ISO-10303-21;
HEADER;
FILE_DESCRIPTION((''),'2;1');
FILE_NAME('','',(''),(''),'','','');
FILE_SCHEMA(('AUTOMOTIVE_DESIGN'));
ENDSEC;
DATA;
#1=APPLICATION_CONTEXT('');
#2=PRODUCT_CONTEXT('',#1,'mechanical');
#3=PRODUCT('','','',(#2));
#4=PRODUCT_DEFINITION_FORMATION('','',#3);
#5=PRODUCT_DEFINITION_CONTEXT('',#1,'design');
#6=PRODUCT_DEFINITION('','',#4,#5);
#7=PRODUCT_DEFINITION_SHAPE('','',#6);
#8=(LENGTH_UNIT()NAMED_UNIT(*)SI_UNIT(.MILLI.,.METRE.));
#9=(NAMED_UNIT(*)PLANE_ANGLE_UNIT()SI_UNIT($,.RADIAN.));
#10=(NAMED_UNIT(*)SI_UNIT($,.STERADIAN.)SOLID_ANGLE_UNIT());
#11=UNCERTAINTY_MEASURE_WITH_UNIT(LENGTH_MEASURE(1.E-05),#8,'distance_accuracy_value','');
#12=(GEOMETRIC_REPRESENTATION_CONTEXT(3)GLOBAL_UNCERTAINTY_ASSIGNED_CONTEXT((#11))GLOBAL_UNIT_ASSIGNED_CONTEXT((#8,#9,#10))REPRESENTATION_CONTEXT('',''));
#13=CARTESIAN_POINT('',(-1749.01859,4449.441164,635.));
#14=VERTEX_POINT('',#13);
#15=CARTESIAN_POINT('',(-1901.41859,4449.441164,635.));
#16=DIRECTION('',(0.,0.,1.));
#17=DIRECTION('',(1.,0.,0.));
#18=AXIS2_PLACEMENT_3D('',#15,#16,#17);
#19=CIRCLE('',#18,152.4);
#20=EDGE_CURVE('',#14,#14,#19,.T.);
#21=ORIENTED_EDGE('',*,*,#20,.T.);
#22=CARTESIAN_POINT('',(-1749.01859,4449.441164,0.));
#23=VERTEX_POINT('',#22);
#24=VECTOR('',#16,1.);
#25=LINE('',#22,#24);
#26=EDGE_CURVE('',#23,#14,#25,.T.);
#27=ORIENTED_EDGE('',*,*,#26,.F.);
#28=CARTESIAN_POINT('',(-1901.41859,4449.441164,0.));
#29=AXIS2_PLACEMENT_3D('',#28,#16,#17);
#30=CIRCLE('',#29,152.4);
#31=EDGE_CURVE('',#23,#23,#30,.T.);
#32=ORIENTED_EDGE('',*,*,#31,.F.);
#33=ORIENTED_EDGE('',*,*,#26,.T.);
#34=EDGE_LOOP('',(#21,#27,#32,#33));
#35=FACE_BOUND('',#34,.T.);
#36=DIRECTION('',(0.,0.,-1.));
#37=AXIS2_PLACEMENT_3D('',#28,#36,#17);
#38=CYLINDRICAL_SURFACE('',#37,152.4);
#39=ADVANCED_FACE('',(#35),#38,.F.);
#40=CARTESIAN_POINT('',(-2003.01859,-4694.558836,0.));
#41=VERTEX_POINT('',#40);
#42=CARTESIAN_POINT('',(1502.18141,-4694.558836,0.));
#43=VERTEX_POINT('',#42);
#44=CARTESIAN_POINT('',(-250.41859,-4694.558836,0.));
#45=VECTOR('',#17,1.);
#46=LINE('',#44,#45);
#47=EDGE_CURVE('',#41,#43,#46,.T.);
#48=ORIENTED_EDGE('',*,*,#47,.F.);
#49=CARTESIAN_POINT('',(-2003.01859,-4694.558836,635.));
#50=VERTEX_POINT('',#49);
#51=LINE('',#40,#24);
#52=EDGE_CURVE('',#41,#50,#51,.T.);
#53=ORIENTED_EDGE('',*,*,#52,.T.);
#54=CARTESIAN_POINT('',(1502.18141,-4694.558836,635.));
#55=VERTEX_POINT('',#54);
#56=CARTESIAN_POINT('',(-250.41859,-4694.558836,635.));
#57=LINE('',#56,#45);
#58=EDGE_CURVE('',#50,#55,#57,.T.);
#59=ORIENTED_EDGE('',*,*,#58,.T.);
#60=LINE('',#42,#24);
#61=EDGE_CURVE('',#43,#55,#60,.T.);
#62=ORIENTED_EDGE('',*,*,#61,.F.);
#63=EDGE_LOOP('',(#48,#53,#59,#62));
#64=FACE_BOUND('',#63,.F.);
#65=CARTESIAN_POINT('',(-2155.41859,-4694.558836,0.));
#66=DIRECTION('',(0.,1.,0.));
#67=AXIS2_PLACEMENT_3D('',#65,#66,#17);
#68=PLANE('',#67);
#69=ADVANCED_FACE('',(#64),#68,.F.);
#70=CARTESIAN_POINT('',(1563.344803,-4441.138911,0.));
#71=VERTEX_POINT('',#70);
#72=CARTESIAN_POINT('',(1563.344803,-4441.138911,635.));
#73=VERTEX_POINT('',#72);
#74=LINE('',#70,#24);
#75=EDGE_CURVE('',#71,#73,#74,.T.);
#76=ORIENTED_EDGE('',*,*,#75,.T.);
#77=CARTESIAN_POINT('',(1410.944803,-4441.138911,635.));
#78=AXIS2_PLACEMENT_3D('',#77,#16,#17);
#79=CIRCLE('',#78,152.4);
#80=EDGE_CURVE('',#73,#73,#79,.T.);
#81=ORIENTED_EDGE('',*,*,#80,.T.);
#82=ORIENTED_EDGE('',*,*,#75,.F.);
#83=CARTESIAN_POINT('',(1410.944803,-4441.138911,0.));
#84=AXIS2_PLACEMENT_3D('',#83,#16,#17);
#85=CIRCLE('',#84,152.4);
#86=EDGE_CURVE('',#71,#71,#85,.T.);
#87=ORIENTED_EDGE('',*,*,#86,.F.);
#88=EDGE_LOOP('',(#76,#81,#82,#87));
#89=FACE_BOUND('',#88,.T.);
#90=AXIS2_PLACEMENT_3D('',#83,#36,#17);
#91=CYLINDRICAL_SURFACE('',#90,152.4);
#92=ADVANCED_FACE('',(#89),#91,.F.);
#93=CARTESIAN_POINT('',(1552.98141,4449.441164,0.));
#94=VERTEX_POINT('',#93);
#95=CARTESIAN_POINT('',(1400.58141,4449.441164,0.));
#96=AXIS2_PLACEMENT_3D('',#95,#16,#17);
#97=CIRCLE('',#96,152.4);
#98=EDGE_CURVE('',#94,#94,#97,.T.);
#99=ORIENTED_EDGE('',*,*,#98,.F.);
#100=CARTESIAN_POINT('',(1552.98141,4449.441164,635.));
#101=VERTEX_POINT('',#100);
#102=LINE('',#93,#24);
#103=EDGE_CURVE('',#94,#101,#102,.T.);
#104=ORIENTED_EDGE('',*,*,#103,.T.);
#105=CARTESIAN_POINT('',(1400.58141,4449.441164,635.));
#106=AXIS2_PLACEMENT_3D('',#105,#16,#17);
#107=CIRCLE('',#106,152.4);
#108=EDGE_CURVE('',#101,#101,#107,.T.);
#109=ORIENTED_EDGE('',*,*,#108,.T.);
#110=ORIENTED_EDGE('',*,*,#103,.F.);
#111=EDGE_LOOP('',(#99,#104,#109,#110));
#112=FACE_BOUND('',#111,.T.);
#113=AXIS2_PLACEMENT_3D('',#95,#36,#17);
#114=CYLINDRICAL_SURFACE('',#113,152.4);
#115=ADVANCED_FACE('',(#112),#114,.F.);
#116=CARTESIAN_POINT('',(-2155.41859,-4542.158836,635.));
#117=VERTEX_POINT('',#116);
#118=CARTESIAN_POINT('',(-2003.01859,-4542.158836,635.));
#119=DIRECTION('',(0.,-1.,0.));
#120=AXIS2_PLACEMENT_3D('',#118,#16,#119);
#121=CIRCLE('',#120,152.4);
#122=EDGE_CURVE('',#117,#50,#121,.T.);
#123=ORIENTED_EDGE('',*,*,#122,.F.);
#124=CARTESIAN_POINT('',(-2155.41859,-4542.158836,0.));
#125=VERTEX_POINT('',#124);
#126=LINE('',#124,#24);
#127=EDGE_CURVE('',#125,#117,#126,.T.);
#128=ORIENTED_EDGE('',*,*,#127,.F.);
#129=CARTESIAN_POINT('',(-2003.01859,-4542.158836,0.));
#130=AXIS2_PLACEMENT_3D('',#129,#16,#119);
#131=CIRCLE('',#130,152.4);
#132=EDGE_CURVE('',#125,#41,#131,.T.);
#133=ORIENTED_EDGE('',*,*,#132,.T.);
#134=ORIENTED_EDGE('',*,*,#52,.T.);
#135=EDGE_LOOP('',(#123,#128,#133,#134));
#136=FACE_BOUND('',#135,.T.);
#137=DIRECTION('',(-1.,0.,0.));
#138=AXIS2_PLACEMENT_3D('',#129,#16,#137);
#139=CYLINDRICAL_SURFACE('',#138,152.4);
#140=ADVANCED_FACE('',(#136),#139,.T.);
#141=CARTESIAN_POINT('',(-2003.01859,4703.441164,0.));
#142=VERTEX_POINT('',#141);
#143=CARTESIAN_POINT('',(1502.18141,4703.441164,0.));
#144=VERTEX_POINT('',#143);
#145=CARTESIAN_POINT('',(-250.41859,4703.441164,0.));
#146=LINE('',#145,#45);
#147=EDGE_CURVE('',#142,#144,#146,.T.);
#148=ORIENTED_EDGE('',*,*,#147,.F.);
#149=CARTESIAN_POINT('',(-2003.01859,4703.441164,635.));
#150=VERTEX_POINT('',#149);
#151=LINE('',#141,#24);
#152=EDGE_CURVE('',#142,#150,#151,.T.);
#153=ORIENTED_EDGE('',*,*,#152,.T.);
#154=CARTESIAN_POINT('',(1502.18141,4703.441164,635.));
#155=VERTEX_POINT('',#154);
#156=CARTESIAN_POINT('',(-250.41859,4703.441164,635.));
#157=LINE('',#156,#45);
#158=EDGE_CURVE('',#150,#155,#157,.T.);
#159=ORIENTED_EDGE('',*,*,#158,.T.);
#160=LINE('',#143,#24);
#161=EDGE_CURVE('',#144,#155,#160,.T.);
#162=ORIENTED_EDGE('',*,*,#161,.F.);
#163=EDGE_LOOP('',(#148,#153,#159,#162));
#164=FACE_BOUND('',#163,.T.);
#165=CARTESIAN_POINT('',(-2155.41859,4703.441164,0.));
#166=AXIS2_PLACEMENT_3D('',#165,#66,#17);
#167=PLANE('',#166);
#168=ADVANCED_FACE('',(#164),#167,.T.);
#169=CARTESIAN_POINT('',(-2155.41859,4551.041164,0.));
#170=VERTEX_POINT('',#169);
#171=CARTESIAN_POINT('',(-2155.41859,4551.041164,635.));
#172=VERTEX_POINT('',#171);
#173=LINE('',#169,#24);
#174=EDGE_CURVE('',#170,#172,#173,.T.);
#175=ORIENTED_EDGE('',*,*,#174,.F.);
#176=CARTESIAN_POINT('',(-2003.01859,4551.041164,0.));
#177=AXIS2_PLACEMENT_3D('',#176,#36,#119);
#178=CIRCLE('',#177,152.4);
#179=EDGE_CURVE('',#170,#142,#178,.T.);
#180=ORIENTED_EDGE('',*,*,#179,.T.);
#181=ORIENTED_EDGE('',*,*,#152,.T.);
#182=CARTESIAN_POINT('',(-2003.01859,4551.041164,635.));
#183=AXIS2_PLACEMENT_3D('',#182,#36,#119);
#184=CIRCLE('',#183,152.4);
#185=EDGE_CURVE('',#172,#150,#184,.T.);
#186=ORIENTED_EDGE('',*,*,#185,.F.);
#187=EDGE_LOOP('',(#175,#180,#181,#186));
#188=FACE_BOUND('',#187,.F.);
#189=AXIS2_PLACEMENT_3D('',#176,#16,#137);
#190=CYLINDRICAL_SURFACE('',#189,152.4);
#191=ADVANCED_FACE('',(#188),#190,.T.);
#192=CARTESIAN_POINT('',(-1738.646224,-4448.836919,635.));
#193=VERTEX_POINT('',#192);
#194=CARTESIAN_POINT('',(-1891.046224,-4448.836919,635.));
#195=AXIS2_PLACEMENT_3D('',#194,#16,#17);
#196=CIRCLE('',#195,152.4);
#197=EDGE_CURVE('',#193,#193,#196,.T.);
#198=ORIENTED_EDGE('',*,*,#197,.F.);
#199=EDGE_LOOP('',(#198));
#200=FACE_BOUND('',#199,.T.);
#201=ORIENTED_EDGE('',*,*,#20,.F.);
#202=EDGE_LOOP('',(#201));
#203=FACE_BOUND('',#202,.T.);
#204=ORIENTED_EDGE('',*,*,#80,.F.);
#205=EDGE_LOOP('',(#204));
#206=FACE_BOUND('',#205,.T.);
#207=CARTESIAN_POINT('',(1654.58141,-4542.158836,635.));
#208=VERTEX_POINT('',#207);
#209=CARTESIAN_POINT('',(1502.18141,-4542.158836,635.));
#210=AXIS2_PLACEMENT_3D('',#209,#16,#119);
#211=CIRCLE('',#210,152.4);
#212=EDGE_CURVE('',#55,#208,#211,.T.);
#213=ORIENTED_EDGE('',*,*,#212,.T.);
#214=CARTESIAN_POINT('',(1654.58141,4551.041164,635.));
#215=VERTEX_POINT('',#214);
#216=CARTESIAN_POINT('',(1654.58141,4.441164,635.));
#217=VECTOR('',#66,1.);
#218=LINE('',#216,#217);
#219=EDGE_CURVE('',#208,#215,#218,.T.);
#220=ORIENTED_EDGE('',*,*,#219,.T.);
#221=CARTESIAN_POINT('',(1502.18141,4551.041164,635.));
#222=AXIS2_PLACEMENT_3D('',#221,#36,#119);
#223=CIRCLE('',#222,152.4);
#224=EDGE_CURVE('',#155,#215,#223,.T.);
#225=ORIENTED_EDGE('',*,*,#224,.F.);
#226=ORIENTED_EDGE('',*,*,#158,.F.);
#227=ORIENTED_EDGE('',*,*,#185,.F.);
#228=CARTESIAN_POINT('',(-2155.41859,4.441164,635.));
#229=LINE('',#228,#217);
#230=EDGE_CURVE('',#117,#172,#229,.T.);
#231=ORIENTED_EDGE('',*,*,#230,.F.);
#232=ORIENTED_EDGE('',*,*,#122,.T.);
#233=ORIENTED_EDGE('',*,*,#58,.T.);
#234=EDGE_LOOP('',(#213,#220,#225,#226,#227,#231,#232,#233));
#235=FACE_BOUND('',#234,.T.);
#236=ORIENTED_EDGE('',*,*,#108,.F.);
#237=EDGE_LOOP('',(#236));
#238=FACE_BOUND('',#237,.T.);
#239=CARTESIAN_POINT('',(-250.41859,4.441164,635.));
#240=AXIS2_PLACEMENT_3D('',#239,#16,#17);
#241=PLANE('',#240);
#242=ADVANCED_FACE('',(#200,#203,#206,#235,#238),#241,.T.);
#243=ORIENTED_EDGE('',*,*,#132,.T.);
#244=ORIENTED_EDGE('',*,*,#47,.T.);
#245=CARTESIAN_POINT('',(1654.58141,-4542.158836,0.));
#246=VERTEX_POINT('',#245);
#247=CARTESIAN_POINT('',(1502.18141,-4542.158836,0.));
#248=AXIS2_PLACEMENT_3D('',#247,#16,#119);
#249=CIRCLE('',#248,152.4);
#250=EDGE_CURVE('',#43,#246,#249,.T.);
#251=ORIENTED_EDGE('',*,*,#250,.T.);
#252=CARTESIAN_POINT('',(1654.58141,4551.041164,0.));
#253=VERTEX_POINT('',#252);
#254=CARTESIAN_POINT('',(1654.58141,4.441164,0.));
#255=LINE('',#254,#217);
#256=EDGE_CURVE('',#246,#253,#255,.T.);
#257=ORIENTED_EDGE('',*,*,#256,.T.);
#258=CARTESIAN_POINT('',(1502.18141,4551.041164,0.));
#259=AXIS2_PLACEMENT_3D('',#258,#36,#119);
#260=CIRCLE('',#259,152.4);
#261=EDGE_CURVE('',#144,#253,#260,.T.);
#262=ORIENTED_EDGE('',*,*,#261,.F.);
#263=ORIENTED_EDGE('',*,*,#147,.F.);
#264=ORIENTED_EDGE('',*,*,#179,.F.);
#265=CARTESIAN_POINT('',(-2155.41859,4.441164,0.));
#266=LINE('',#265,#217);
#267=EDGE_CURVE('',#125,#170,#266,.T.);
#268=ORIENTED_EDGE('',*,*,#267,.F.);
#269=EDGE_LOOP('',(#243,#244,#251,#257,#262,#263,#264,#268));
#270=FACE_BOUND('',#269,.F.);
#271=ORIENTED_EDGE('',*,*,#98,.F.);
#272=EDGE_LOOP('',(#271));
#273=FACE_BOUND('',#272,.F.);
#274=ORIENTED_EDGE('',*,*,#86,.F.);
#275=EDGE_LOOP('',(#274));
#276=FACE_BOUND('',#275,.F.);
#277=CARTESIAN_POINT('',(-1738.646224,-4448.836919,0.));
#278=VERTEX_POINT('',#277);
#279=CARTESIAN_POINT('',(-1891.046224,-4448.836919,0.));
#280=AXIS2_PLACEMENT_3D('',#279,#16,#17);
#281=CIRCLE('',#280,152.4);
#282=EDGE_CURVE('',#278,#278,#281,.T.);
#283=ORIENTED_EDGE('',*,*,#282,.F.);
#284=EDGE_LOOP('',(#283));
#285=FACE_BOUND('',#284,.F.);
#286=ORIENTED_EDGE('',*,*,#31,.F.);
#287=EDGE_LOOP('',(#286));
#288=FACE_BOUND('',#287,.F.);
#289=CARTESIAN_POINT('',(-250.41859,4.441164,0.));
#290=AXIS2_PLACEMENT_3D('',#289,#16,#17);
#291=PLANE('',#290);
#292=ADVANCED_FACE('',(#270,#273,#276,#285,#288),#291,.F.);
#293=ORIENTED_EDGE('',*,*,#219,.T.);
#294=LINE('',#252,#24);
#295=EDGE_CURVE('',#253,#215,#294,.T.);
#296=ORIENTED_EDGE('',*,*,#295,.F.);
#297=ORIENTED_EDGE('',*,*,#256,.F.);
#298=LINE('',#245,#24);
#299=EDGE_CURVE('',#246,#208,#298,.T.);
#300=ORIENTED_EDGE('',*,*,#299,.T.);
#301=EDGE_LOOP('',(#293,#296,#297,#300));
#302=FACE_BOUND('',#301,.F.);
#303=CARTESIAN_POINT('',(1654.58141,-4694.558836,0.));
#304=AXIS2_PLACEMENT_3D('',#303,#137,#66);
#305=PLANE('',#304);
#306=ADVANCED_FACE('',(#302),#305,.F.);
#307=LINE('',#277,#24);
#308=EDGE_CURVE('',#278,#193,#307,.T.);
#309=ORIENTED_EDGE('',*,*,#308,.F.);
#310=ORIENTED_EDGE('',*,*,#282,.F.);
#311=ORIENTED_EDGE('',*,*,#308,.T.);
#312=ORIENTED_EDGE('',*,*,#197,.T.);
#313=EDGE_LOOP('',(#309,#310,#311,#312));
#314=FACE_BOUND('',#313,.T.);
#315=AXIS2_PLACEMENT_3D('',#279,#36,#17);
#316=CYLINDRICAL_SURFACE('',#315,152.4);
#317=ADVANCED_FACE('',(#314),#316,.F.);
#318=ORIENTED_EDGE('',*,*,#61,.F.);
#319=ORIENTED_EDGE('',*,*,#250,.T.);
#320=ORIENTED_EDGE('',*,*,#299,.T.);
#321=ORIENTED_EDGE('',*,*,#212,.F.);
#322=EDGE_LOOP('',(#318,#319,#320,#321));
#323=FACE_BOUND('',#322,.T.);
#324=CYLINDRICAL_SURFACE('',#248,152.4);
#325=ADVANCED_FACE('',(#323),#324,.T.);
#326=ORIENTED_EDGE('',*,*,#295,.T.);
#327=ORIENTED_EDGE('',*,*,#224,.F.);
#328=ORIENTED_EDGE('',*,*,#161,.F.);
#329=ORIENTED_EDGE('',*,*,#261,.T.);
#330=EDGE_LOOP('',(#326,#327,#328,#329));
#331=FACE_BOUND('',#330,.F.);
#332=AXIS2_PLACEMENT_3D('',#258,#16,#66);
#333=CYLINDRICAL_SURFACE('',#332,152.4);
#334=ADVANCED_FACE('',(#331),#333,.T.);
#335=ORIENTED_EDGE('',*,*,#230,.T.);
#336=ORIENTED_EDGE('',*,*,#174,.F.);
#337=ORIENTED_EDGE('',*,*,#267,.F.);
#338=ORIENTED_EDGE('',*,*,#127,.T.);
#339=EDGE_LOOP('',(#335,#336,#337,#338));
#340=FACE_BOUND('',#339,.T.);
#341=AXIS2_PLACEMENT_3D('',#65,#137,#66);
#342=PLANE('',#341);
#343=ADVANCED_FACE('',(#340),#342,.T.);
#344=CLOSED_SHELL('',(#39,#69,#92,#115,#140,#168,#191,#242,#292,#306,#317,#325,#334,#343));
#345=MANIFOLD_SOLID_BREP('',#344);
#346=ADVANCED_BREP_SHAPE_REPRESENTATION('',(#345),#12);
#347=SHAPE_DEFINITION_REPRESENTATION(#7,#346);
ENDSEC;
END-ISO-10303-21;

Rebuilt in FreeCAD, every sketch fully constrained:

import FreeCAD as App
import Part
import Sketcher
from FreeCAD import Vector
Q = App.Units.Quantity


def edges_at(feature, points):
    """Names of the edges that pass closest to the given points."""
    edges = feature.Shape.Edges
    near = lambda p: min(range(len(edges)), key=lambda i: edges[i].distToShape(Part.Vertex(*p))[0])
    return sorted({f"Edge{near(p) + 1}" for p in points})


def add_polygon(sketch, points):
    """Adds a closed chain of lines whose ends are joined by coincident constraints."""
    first, n = sketch.GeometryCount, len(points)
    for a, b in zip(points, points[1:] + points[:1]):
        sketch.addGeometry(Part.LineSegment(App.Vector(*a, 0), App.Vector(*b, 0)), False)
    for i in range(n):
        sketch.addConstraint(Sketcher.Constraint("Coincident", first + i, 2, first + (i + 1) % n, 1))

doc = App.newDocument("Part")
params = doc.addObject("Spreadsheet::Sheet", "Params")
for row, (alias, value) in enumerate([
    ("sketch1_diameter", "12 in"),
    ("sketch1_width", "150 in"),
    ("sketch1_height", "370 in"),
    ("pad1_length", "25 in"),
    ("fillet_radius", "6 in"),
], start=1):
    params.set(f"A{row}", alias)
    params.set(f"B{row}", "=" + value)
    params.setAlias(f"B{row}", alias)

body = doc.addObject("PartDesign::Body", "Body")

# Sketch on XY plane
sketch1 = body.newObject("Sketcher::SketchObject", "Sketch")
sketch1.AttachmentSupport = (doc.getObject("XY_Plane"), [""])
sketch1.MapMode = "FlatFace"
add_polygon(sketch1, [(-2155, 4703), (-2155, -4695), (1655, -4695), (1655, 4703)])  # lines 0-3
sketch1.addGeometry(Part.Circle(Vector(-1891, -4449, 0), Vector(0, 0, 1), 152), False)  # 4
sketch1.addGeometry(Part.Circle(Vector(1411, -4441, 0), Vector(0, 0, 1), 152), False)  # 5
sketch1.addGeometry(Part.Circle(Vector(-1901, 4449, 0), Vector(0, 0, 1), 152), False)  # 6
sketch1.addGeometry(Part.Circle(Vector(1401, 4449, 0), Vector(0, 0, 1), 152), False)  # 7
sketch1.addConstraint([
    Sketcher.Constraint("Vertical", 0),
    Sketcher.Constraint("Horizontal", 1),
    Sketcher.Constraint("Vertical", 2),
    Sketcher.Constraint("Horizontal", 3),
    Sketcher.Constraint("Equal", 4, 5),
    Sketcher.Constraint("Equal", 5, 6),
    Sketcher.Constraint("Equal", 6, 7),
    Sketcher.Constraint("Horizontal", 6, 3, 7, 3),
    Sketcher.Constraint("Diameter", 4, Q("12 in")),
    Sketcher.Constraint("DistanceX", 1, 1, 1, 2, Q("150 in")),
    Sketcher.Constraint("DistanceY", 0, 2, 0, 1, Q("370 in")),
    Sketcher.Constraint("DistanceX", 6, 3, 7, 3, Q("130 in")),
    Sketcher.Constraint("DistanceX", 0, 2, 6, 3, Q("10 in")),
    Sketcher.Constraint("DistanceY", 0, 2, 6, 3, Q("360 in")),
    Sketcher.Constraint("DistanceY", 4, 3, -1, 1, 4448.836919),
    Sketcher.Constraint("DistanceY", 5, 3, -1, 1, 4441.138911),
    Sketcher.Constraint("DistanceX", 6, 3, -1, 1, 1901.41859),
    Sketcher.Constraint("DistanceX", 4, 3, -1, 1, 1891.046224),
    Sketcher.Constraint("DistanceX", -1, 1, 5, 3, 1410.944803),
    Sketcher.Constraint("DistanceY", -1, 1, 6, 3, 4449.441164),
])
sketch1.setExpression("Constraints[12]", "Params.sketch1_diameter")
sketch1.setExpression("Constraints[13]", "Params.sketch1_width")
sketch1.setExpression("Constraints[14]", "Params.sketch1_height")
pad1 = body.newObject("PartDesign::Pad", "Pad")
pad1.Profile = sketch1
pad1.setExpression("Length", "Params.pad1_length")
doc.recompute()

fillet = body.newObject("PartDesign::Fillet", "Fillet")
fillet.Base = (pad1, edges_at(pad1, [
    (1654.581, 4703.441, 317.5),
    (-2155.419, 4703.441, 317.5),
    (-2155.419, -4694.559, 317.5),
    (1654.581, -4694.559, 317.5),
]))
fillet.setExpression("Radius", "Params.fillet_radius")

doc.recompute()
